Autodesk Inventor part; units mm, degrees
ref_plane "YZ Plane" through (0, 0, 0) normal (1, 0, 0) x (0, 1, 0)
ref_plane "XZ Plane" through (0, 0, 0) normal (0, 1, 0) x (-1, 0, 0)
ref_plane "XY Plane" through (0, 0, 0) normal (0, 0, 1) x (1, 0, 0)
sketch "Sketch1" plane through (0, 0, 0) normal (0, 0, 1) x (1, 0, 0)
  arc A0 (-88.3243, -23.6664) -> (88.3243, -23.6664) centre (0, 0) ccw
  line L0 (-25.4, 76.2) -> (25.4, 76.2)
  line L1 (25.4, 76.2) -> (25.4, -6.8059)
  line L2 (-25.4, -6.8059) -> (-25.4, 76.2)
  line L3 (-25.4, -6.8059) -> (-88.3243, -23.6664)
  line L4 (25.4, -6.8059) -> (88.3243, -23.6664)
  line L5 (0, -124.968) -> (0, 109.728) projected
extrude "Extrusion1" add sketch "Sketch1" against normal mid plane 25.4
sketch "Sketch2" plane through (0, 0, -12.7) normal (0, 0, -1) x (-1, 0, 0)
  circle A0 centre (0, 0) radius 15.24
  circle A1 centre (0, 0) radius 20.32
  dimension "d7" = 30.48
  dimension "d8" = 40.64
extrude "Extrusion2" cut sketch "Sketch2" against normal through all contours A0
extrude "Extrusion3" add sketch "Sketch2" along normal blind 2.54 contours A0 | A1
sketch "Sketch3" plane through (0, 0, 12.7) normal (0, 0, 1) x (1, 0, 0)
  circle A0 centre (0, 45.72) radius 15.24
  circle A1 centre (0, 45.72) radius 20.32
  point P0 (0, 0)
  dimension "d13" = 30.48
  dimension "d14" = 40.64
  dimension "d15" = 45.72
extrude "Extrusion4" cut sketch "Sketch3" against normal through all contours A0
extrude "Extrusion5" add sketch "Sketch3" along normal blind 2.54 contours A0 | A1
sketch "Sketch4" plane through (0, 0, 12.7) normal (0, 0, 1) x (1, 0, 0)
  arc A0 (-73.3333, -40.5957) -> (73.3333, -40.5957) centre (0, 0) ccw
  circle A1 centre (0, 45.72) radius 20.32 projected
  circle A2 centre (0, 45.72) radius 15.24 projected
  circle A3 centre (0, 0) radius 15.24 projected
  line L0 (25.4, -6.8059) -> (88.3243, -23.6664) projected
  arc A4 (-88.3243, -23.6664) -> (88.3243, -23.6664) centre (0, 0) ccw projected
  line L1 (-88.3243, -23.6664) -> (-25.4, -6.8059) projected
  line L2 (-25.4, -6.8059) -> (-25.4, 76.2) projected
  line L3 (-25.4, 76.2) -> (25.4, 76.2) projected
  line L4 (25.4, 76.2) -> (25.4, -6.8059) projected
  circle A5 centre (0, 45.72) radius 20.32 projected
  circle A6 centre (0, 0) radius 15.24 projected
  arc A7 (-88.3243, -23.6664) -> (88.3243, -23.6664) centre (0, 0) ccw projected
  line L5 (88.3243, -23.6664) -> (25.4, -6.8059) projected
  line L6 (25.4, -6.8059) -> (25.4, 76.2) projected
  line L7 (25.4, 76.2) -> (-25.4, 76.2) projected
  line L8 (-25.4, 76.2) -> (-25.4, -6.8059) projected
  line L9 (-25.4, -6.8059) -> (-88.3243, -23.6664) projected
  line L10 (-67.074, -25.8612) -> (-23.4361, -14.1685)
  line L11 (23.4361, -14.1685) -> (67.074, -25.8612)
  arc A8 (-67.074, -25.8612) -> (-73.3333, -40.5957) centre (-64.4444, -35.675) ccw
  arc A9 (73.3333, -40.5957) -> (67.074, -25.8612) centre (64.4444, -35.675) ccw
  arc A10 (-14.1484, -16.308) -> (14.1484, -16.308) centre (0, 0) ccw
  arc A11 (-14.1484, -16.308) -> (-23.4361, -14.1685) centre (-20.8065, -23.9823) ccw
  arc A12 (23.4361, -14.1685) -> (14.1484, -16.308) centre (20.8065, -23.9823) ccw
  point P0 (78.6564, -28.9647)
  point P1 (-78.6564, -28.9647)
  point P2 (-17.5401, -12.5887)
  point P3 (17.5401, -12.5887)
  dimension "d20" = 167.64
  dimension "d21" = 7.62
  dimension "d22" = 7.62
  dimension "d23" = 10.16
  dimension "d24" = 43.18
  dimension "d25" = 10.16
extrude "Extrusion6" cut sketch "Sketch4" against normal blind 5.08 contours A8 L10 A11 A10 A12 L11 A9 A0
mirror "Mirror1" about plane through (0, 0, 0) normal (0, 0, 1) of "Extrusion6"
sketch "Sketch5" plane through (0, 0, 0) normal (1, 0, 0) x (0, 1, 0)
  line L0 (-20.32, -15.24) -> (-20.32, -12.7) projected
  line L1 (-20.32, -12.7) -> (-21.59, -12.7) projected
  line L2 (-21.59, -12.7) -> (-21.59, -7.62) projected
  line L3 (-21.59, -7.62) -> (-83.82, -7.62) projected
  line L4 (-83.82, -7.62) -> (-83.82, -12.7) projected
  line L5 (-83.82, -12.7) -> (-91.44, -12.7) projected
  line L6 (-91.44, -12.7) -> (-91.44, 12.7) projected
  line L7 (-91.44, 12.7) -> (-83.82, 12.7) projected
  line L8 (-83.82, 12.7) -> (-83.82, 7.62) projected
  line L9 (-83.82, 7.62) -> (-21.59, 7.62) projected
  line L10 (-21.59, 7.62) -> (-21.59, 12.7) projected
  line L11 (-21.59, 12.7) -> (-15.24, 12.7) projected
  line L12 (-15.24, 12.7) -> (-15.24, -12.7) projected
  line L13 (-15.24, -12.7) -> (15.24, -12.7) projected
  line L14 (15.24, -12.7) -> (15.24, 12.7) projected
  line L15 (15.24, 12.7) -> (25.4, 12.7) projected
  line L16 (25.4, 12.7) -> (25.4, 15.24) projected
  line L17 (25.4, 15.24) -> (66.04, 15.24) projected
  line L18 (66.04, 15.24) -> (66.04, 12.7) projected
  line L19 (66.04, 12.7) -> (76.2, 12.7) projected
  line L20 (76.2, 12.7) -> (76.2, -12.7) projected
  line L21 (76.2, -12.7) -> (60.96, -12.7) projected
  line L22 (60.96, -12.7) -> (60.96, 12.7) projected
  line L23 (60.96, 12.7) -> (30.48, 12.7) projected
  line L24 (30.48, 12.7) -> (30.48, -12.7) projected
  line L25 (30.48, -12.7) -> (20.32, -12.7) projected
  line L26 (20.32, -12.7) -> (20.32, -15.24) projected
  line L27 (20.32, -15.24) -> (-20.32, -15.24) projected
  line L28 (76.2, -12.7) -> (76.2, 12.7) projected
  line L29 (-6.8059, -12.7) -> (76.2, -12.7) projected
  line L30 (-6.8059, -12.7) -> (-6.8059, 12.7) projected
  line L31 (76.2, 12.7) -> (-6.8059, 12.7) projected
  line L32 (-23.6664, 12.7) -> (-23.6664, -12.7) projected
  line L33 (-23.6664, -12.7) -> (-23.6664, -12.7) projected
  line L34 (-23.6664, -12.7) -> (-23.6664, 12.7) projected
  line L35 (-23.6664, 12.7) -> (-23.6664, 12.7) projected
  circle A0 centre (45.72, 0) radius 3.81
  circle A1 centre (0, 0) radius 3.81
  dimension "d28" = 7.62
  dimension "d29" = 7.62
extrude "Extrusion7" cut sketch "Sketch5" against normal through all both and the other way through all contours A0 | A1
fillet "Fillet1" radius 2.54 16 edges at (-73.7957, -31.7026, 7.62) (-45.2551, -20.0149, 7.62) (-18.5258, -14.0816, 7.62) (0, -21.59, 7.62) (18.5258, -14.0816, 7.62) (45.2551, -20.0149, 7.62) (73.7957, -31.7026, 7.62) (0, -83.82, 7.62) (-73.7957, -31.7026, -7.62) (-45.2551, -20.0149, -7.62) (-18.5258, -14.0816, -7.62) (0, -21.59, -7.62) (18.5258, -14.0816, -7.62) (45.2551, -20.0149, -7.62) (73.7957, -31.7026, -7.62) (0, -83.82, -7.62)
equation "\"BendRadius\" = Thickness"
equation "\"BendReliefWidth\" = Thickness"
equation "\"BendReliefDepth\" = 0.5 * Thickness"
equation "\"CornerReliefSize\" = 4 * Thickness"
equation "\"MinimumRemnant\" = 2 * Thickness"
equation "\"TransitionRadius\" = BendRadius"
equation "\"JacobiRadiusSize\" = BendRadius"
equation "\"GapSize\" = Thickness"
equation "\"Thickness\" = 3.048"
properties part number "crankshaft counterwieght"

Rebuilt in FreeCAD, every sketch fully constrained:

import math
import FreeCAD as App
import Part
import Sketcher

V = App.Vector
Q = App.Units.Quantity


def edges_at(feature, points):
    """Names of the edges that pass closest to the given points."""
    edges = feature.Shape.Edges
    near = lambda p: min(range(len(edges)), key=lambda i: edges[i].distToShape(Part.Vertex(*p))[0])
    return sorted({f"Edge{near(p) + 1}" for p in points})

doc = App.newDocument("Part")
body = doc.addObject("PartDesign::Body", "Body")

sketch1 = body.newObject("Sketcher::SketchObject", "Sketch")
sketch1.AttachmentSupport = (doc.getObject("XY_Plane"), [""])
sketch1.MapMode = "FlatFace"
sketch1.addGeometry(Part.LineSegment(V(-25.4, -6.8059, 0), V(-88.3243, -23.6664, 0)), False)
sketch1.addGeometry(Part.ArcOfCircle(Part.Circle(V(0, 0, 0), V(0, 0, 1), 91.440038), math.radians(-165.000015), math.radians(-14.999985)), False)
sketch1.addGeometry(Part.LineSegment(V(88.3243, -23.6664, 0), V(25.4, -6.8059, 0)), False)
sketch1.addGeometry(Part.LineSegment(V(25.4, -6.8059, 0), V(25.4, 76.2, 0)), False)
sketch1.addGeometry(Part.LineSegment(V(25.4, 76.2, 0), V(-25.4, 76.2, 0)), False)
sketch1.addGeometry(Part.LineSegment(V(-25.4, 76.2, 0), V(-25.4, -6.8059, 0)), False)
sketch1.addConstraint(Sketcher.Constraint("Coincident", 0, 2, 1, 1))
sketch1.addConstraint(Sketcher.Constraint("Coincident", 1, 2, 2, 1))
sketch1.addConstraint(Sketcher.Constraint("Coincident", 2, 2, 3, 1))
sketch1.addConstraint(Sketcher.Constraint("Coincident", 3, 2, 4, 1))
sketch1.addConstraint(Sketcher.Constraint("Coincident", 4, 2, 5, 1))
sketch1.addConstraint(Sketcher.Constraint("Coincident", 5, 2, 0, 1))
sketch1.addConstraint(Sketcher.Constraint("Vertical", 3))
sketch1.addConstraint(Sketcher.Constraint("Horizontal", 4))
sketch1.addConstraint(Sketcher.Constraint("Vertical", 5))
sketch1.addConstraint(Sketcher.Constraint("Coincident", 1, 3, -1, 1))
sketch1.addConstraint(Sketcher.Constraint("Symmetric", 2, 2, 5, 2, -2))
sketch1.addConstraint(Sketcher.Constraint("Horizontal", 0, 2, 1, 2))
sketch1.addConstraint(Sketcher.Constraint("Radius", 1, Q("3.6 in")))
sketch1.addConstraint(Sketcher.Constraint("DistanceX", 4, 2, 4, 1, Q("2 in")))
sketch1.addConstraint(Sketcher.Constraint("DistanceY", -1, 1, 3, 2, Q("3 in")))
sketch1.addConstraint(Sketcher.Constraint("Angle", 0, Q("-165 deg")))
sketch1.addConstraint(Sketcher.Constraint("DistanceY", 3, 1, 3, 2, Q("83.006 mm")))
pad1 = body.newObject("PartDesign::Pad", "Pad")
pad1.Profile = sketch1
pad1.Length = Q("1 in")
pad1.Midplane = True

sketch2 = body.newObject("Sketcher::SketchObject", "Sketch001")
sketch2.AttachmentSupport = (doc.getObject("XY_Plane"), [""])
sketch2.MapMode = "FlatFace"
sketch2.AttachmentOffset = App.Placement(V(0, 0, -0.5 * 25.4), App.Rotation())
sketch2.addGeometry(Part.Circle(V(0, 0, 0), V(0, 0, 1), 15.24), False)
sketch2.addConstraint(Sketcher.Constraint("Coincident", 0, 3, -1, 1))
sketch2.addConstraint(Sketcher.Constraint("Diameter", 0, Q("1.2 in")))
pocket1 = body.newObject("PartDesign::Pocket", "Pocket")
pocket1.Profile = sketch2
pocket1.Type = "ThroughAll"
pocket1.Reversed = True

sketch3 = body.newObject("Sketcher::SketchObject", "Sketch002")
sketch3.AttachmentSupport = (doc.getObject("XY_Plane"), [""])
sketch3.MapMode = "FlatFace"
sketch3.AttachmentOffset = App.Placement(V(0, 0, -0.5 * 25.4), App.Rotation())
sketch3.addGeometry(Part.Circle(V(0, 0, 0), V(0, 0, 1), 20.32), False)
sketch3.addConstraint(Sketcher.Constraint("Coincident", 0, 3, -1, 1))
sketch3.addConstraint(Sketcher.Constraint("Diameter", 0, Q("1.6 in")))
pad2 = body.newObject("PartDesign::Pad", "Pad001")
pad2.Profile = sketch3
pad2.Length = Q("0.1 in")
pad2.Reversed = True

sketch4 = body.newObject("Sketcher::SketchObject", "Sketch003")
sketch4.AttachmentSupport = (doc.getObject("XY_Plane"), [""])
sketch4.MapMode = "FlatFace"
sketch4.AttachmentOffset = App.Placement(V(0, 0, 0.5 * 25.4), App.Rotation())
sketch4.addGeometry(Part.Circle(V(0, 45.72, 0), V(0, 0, 1), 15.24), False)
sketch4.addConstraint(Sketcher.Constraint("PointOnObject", 0, 3, -2))
sketch4.addConstraint(Sketcher.Constraint("Diameter", 0, Q("1.2 in")))
sketch4.addConstraint(Sketcher.Constraint("DistanceY", -1, 1, 0, 3, Q("1.8 in")))
pocket2 = body.newObject("PartDesign::Pocket", "Pocket001")
pocket2.Profile = sketch4
pocket2.Type = "ThroughAll"

sketch5 = body.newObject("Sketcher::SketchObject", "Sketch004")
sketch5.AttachmentSupport = (doc.getObject("XY_Plane"), [""])
sketch5.MapMode = "FlatFace"
sketch5.AttachmentOffset = App.Placement(V(0, 0, 0.5 * 25.4), App.Rotation())
sketch5.addGeometry(Part.Circle(V(0, 45.72, 0), V(0, 0, 1), 20.32), False)
sketch5.addConstraint(Sketcher.Constraint("PointOnObject", 0, 3, -2))
sketch5.addConstraint(Sketcher.Constraint("Diameter", 0, Q("1.6 in")))
sketch5.addConstraint(Sketcher.Constraint("DistanceY", -1, 1, 0, 3, Q("1.8 in")))
pad3 = body.newObject("PartDesign::Pad", "Pad002")
pad3.Profile = sketch5
pad3.Length = Q("0.1 in")

sketch6 = body.newObject("Sketcher::SketchObject", "Sketch005")
sketch6.AttachmentSupport = (doc.getObject("XY_Plane"), [""])
sketch6.MapMode = "FlatFace"
sketch6.AttachmentOffset = App.Placement(V(0, 0, 0.5 * 25.4), App.Rotation())
sketch6.addGeometry(Part.ArcOfCircle(Part.Circle(V(-64.4444, -35.675, 0), V(0, 0, 1), 10.159993), math.radians(105.000001), math.radians(208.967951)), False)
sketch6.addGeometry(Part.ArcOfCircle(Part.Circle(V(0, 0, 0), V(0, 0, 1), 83.819948), math.radians(-151.032052), math.radians(-28.967948)), False)
sketch6.addGeometry(Part.ArcOfCircle(Part.Circle(V(64.4444, -35.675, 0), V(0, 0, 1), 10.160011), math.radians(-28.967951), math.radians(74.999999)), False)
sketch6.addGeometry(Part.LineSegment(V(67.074, -25.8612, 0), V(23.4361, -14.1685, 0)), False)
sketch6.addGeometry(Part.ArcOfCircle(Part.Circle(V(20.8065, -23.9823, 0), V(0, 0, 1), 10.159993), math.radians(74.999999), math.radians(130.944385)), False)
sketch6.addGeometry(Part.ArcOfCircle(Part.Circle(V(0, 0, 0), V(0, 0, 1), 21.59), math.radians(-130.944064), math.radians(-49.055936)), False)
sketch6.addGeometry(Part.ArcOfCircle(Part.Circle(V(-20.8065, -23.9823, 0), V(0, 0, 1), 10.159979), math.radians(49.055615), math.radians(105.000001)), False)
sketch6.addGeometry(Part.LineSegment(V(-23.4361, -14.1685, 0), V(-67.074, -25.8612, 0)), False)
sketch6.addConstraint(Sketcher.Constraint("Tangent", 0, 2, 1, 1))
sketch6.addConstraint(Sketcher.Constraint("Tangent", 1, 2, 2, 1))
sketch6.addConstraint(Sketcher.Constraint("Tangent", 2, 2, 3, 1))
sketch6.addConstraint(Sketcher.Constraint("Tangent", 3, 2, 4, 1))
sketch6.addConstraint(Sketcher.Constraint("Tangent", 4, 2, 5, 2))
sketch6.addConstraint(Sketcher.Constraint("Tangent", 5, 1, 6, 1))
sketch6.addConstraint(Sketcher.Constraint("Tangent", 6, 2, 7, 1))
sketch6.addConstraint(Sketcher.Constraint("Tangent", 7, 2, 0, 1))
sketch6.addConstraint(Sketcher.Constraint("Coincident", 1, 3, -1, 1))
sketch6.addConstraint(Sketcher.Constraint("Coincident", 5, 3, -1, 1))
sketch6.addConstraint(Sketcher.Constraint("Equal", 0, 2))
sketch6.addConstraint(Sketcher.Constraint("Equal", 2, 4))
sketch6.addConstraint(Sketcher.Constraint("Equal", 4, 6))
sketch6.addConstraint(Sketcher.Constraint("Symmetric", 3, 2, 6, 2, -2))
sketch6.addConstraint(Sketcher.Constraint("Radius", 0, Q("0.4 in")))
sketch6.addConstraint(Sketcher.Constraint("Radius", 1, Q("3.3 in")))
sketch6.addConstraint(Sketcher.Constraint("Radius", 5, Q("0.85 in")))
sketch6.addConstraint(Sketcher.Constraint("Angle", 3, Q("165 deg")))
sketch6.addConstraint(Sketcher.Constraint("DistanceX", -1, 1, 2, 2, Q("2.6407 in")))
pocket3 = body.newObject("PartDesign::Pocket", "Pocket002")
pocket3.Profile = sketch6
pocket3.Length = Q("0.2 in")
doc.recompute()

mirrored = body.newObject("PartDesign::Mirrored", "Mirrored")
mirrored.Originals = [pocket3]
mirrored.MirrorPlane = (doc.getObject("XY_Plane"), [""])
body.Tip = mirrored

sketch7 = body.newObject("Sketcher::SketchObject", "Sketch006")
sketch7.AttachmentSupport = (doc.getObject("YZ_Plane"), [""])
sketch7.MapMode = "FlatFace"
sketch7.addGeometry(Part.Circle(V(45.72, 0, 0), V(0, 0, 1), 3.81), False)
sketch7.addGeometry(Part.Circle(V(0, 0, 0), V(0, 0, 1), 3.81), False)
sketch7.addConstraint(Sketcher.Constraint("Coincident", 1, 3, -1, 1))
sketch7.addConstraint(Sketcher.Constraint("Equal", 0, 1))
sketch7.addConstraint(Sketcher.Constraint("PointOnObject", 0, 3, -1))
sketch7.addConstraint(Sketcher.Constraint("Diameter", 0, Q("0.3 in")))
sketch7.addConstraint(Sketcher.Constraint("DistanceX", -1, 1, 0, 3, Q("1.8 in")))
pocket4 = body.newObject("PartDesign::Pocket", "Pocket003")
pocket4.Profile = sketch7
pocket4.Type = "ThroughAll"
pocket4.Midplane = True
doc.recompute()

fillet = body.newObject("PartDesign::Fillet", "Fillet")
fillet.Base = (pocket4, edges_at(pocket4, [
    (-73.796, -31.703, 7.62),
    (-45.255, -20.015, 7.62),
    (-18.526, -14.082, 7.62),
    (0, -21.59, 7.62),
    (18.526, -14.082, 7.62),
    (45.255, -20.015, 7.62),
    (73.796, -31.703, 7.62),
    (0, -83.82, 7.62),
    (-73.796, -31.703, -7.62),
    (-45.255, -20.015, -7.62),
    (-18.526, -14.082, -7.62),
    (0, -21.59, -7.62),
    (18.526, -14.082, -7.62),
    (45.255, -20.015, -7.62),
    (73.796, -31.703, -7.62),
    (0, -83.82, -7.62),
]))
fillet.Radius = Q("0.1 in")

doc.recompute()
